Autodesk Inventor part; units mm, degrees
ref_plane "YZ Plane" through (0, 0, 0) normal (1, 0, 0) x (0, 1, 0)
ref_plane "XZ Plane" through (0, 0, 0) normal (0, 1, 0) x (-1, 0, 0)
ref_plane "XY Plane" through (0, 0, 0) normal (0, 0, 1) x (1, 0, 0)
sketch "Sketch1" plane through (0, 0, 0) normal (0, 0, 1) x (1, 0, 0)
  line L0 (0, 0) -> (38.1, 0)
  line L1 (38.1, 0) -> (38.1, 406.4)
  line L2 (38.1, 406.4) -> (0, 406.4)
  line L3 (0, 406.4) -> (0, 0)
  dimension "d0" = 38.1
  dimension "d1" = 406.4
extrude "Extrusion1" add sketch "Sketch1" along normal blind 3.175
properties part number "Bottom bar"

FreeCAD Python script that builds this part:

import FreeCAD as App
import Part
import Sketcher

V = App.Vector
Q = App.Units.Quantity

doc = App.newDocument("Part")
params = doc.addObject("Spreadsheet::Sheet", "Params")
for row, (alias, value) in enumerate([
    ("sketch1_height", "16 in"),
    ("sketch1_width", "1.5 in"),
    ("pad1_length", "0.125 in"),
], start=1):
    params.set(f"A{row}", alias)
    params.set(f"B{row}", "=" + value)
    params.setAlias(f"B{row}", alias)

body = doc.addObject("PartDesign::Body", "Body")

# Sketch on XY plane
sketch1 = doc.addObject("Sketcher::SketchObject", "Sketch")
body.addObject(sketch1)
sketch1.AttachmentSupport = (doc.XY_Plane, [""])
sketch1.MapMode = "FlatFace"
sketch1.addGeometry(Part.LineSegment(V(0, 406, 0), V(0, 0, 0)), False)
sketch1.addGeometry(Part.LineSegment(V(0, 0, 0), V(38, 0, 0)), False)
sketch1.addGeometry(Part.LineSegment(V(38, 0, 0), V(38, 406, 0)), False)
sketch1.addGeometry(Part.LineSegment(V(38, 406, 0), V(0, 406, 0)), False)
sketch1.addConstraint(Sketcher.Constraint("Coincident", 0, 2, 1, 1))
sketch1.addConstraint(Sketcher.Constraint("Coincident", 1, 2, 2, 1))
sketch1.addConstraint(Sketcher.Constraint("Coincident", 2, 2, 3, 1))
sketch1.addConstraint(Sketcher.Constraint("Coincident", 3, 2, 0, 1))
sketch1.addConstraint(Sketcher.Constraint("Vertical", 0))
sketch1.addConstraint(Sketcher.Constraint("Horizontal", 1))
sketch1.addConstraint(Sketcher.Constraint("Vertical", 2))
sketch1.addConstraint(Sketcher.Constraint("Horizontal", 3))
sketch1.addConstraint(Sketcher.Constraint("Coincident", 0, 2, -1, 1))
sketch1.addConstraint(Sketcher.Constraint("DistanceY", 0, 2, 0, 1, Q("16 in")))
sketch1.addConstraint(Sketcher.Constraint("DistanceX", 1, 1, 1, 2, Q("1.5 in")))
sketch1.setExpression("Constraints[9]", "Params.sketch1_height")
sketch1.setExpression("Constraints[10]", "Params.sketch1_width")
pad1 = doc.addObject("PartDesign::Pad", "Pad")
body.addObject(pad1)
pad1.Profile = sketch1
pad1.setExpression("Length", "Params.pad1_length")

doc.recompute()
